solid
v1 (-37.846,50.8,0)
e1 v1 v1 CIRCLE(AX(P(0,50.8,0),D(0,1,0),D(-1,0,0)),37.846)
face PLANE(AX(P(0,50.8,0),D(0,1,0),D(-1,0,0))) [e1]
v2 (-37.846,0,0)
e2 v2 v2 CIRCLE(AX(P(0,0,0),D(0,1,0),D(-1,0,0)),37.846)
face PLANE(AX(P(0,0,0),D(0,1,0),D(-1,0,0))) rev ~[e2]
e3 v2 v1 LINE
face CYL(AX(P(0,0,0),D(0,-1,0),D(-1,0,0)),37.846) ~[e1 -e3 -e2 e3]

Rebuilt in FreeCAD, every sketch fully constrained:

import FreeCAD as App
import Part
import Sketcher

V = App.Vector
Q = App.Units.Quantity

doc = App.newDocument("Part")
body = doc.addObject("PartDesign::Body", "Body")

# Sketch on XZ plane
sketch1 = body.newObject("Sketcher::SketchObject", "Sketch")
sketch1.AttachmentSupport = (doc.getObject("XZ_Plane"), [""])
sketch1.MapMode = "FlatFace"
sketch1.addGeometry(Part.Circle(V(0, 0, 0), V(0, 0, 1), 38), False)
sketch1.addConstraint(Sketcher.Constraint("Coincident", 0, 3, -1, 1))
sketch1.addConstraint(Sketcher.Constraint("Diameter", 0, Q("2.98 in")))
pad1 = body.newObject("PartDesign::Pad", "Pad")
pad1.Profile = sketch1
pad1.Length = Q("2 in")
pad1.Reversed = True

doc.recompute()
